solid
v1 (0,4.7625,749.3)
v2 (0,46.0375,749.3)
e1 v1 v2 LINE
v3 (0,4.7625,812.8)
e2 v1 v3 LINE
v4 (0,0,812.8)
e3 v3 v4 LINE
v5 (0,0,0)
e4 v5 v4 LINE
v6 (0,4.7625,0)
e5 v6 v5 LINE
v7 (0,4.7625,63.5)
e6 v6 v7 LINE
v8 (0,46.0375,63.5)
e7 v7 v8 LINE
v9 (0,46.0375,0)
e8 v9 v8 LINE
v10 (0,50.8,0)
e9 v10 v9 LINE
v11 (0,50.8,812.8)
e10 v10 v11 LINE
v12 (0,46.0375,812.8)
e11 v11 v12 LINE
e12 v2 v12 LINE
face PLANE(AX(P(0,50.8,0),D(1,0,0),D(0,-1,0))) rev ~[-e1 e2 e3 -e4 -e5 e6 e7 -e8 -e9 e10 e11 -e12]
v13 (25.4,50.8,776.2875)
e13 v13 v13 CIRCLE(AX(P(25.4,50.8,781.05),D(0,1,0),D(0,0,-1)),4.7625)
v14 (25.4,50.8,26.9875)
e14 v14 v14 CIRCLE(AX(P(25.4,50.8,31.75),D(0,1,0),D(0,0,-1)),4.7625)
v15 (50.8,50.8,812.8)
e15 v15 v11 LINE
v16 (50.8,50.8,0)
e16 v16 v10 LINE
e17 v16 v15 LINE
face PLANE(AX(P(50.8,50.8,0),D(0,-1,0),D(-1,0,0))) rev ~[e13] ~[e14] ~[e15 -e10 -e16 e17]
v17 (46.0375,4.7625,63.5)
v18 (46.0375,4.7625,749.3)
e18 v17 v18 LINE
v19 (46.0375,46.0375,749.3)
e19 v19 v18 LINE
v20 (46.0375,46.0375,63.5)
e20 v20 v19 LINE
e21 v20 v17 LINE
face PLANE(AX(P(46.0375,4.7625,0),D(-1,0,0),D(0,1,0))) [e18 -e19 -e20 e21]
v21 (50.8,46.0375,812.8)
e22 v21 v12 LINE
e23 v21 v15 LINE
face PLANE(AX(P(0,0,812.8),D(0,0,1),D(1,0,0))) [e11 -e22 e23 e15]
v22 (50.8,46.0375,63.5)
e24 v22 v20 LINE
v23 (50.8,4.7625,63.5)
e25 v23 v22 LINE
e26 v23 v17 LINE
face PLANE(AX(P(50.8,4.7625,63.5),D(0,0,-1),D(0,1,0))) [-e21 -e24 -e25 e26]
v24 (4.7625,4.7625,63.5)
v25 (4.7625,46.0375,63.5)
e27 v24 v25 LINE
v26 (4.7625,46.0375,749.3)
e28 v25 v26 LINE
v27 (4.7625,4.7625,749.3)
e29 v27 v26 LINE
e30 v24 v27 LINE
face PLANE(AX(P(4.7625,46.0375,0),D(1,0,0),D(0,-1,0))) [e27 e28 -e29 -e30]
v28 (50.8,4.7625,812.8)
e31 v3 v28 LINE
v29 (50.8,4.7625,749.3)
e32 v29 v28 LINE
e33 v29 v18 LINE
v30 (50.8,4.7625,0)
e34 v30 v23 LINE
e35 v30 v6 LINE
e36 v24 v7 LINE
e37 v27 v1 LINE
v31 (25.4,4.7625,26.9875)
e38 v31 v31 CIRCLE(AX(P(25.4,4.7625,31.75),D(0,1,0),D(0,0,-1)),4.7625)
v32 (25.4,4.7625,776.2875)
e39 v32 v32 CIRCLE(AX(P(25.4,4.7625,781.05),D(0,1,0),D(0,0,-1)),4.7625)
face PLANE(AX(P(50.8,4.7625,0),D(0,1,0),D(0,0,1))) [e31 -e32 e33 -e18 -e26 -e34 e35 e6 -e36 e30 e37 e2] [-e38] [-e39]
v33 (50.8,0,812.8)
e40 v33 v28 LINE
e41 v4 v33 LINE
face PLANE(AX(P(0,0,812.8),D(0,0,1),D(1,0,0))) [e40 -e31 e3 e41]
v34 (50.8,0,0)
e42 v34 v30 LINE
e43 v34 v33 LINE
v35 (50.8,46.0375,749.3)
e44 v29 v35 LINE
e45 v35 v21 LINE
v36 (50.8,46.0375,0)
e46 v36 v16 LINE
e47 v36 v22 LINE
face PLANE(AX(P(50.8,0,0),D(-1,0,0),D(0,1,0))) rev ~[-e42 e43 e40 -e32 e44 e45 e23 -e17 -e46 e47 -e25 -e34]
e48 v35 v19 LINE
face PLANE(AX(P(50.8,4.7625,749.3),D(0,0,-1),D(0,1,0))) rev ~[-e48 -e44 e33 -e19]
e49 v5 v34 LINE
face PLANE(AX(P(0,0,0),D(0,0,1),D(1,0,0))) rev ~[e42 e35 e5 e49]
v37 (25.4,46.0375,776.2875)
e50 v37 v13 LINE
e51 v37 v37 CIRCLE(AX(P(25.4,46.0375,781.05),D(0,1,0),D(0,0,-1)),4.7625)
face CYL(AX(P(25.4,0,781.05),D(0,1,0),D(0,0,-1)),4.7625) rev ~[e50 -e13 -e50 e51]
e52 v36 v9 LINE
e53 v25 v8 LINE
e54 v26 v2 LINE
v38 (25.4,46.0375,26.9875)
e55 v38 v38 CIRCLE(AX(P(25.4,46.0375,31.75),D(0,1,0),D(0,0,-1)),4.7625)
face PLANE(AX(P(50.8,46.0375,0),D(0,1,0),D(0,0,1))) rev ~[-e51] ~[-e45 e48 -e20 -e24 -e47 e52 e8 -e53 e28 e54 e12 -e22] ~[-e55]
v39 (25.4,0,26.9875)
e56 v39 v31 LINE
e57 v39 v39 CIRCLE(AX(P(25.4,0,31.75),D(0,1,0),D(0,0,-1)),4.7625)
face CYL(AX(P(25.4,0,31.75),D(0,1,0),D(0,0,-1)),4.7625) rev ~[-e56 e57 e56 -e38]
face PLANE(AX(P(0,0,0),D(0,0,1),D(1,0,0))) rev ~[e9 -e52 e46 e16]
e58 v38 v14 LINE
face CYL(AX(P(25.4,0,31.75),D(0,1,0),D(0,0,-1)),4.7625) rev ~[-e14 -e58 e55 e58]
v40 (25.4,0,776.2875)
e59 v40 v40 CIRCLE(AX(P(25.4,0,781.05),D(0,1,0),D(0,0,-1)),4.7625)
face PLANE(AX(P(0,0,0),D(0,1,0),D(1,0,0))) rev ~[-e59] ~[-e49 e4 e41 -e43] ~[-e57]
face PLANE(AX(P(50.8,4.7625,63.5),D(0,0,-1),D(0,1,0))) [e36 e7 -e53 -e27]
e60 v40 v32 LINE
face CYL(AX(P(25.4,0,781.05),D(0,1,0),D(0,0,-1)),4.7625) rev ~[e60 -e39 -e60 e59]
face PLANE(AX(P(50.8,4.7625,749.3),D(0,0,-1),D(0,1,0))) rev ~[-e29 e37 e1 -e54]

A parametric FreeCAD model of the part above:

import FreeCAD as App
import Part
import Sketcher

V = App.Vector
Q = App.Units.Quantity

doc = App.newDocument("Part")
params = doc.addObject("Spreadsheet::Sheet", "Params")
for row, (alias, value) in enumerate([
    ("sketch1_width", "2 in"),
    ("pad1_length", "32 in"),
    ("sketch2_height", "2.5 in"),
    ("sketch2_width", "1.625 in"),
    ("pocket1_length", "2 in"),
    ("sketch3_diameter", "0.375 in"),
    ("hole_diameter", "0.375 in"),
    ("hole_depth", "2 in"),
], start=1):
    params.set(f"A{row}", alias)
    params.set(f"B{row}", "=" + value)
    params.setAlias(f"B{row}", alias)

body = doc.addObject("PartDesign::Body", "Body")

# Sketch on XY plane
sketch1 = body.newObject("Sketcher::SketchObject", "Sketch")
sketch1.AttachmentSupport = (doc.getObject("XY_Plane"), [""])
sketch1.MapMode = "FlatFace"
sketch1.addGeometry(Part.LineSegment(V(0, 51, 0), V(0, 0, 0)), False)
sketch1.addGeometry(Part.LineSegment(V(0, 0, 0), V(51, 0, 0)), False)
sketch1.addGeometry(Part.LineSegment(V(51, 0, 0), V(51, 51, 0)), False)
sketch1.addGeometry(Part.LineSegment(V(51, 51, 0), V(0, 51, 0)), False)
sketch1.addGeometry(Part.LineSegment(V(5, 46, 0), V(46, 46, 0)), False)
sketch1.addGeometry(Part.LineSegment(V(46, 46, 0), V(46, 5, 0)), False)
sketch1.addGeometry(Part.LineSegment(V(46, 5, 0), V(5, 5, 0)), False)
sketch1.addGeometry(Part.LineSegment(V(5, 5, 0), V(5, 46, 0)), False)
sketch1.addConstraint(Sketcher.Constraint("Coincident", 0, 2, 1, 1))
sketch1.addConstraint(Sketcher.Constraint("Coincident", 1, 2, 2, 1))
sketch1.addConstraint(Sketcher.Constraint("Coincident", 2, 2, 3, 1))
sketch1.addConstraint(Sketcher.Constraint("Coincident", 3, 2, 0, 1))
sketch1.addConstraint(Sketcher.Constraint("Coincident", 4, 2, 5, 1))
sketch1.addConstraint(Sketcher.Constraint("Coincident", 5, 2, 6, 1))
sketch1.addConstraint(Sketcher.Constraint("Coincident", 6, 2, 7, 1))
sketch1.addConstraint(Sketcher.Constraint("Coincident", 7, 2, 4, 1))
sketch1.addConstraint(Sketcher.Constraint("Vertical", 0))
sketch1.addConstraint(Sketcher.Constraint("Horizontal", 1))
sketch1.addConstraint(Sketcher.Constraint("Vertical", 2))
sketch1.addConstraint(Sketcher.Constraint("Horizontal", 3))
sketch1.addConstraint(Sketcher.Constraint("Horizontal", 4))
sketch1.addConstraint(Sketcher.Constraint("Vertical", 5))
sketch1.addConstraint(Sketcher.Constraint("Horizontal", 6))
sketch1.addConstraint(Sketcher.Constraint("Vertical", 7))
sketch1.addConstraint(Sketcher.Constraint("Coincident", 0, 2, -1, 1))
sketch1.addConstraint(Sketcher.Constraint("Equal", 3, 0))
sketch1.addConstraint(Sketcher.Constraint("Equal", 6, 5))
sketch1.addConstraint(Sketcher.Constraint("DistanceX", 1, 1, 1, 2, Q("2 in")))
sketch1.addConstraint(Sketcher.Constraint("DistanceY", -1, 1, 5, 2, Q("0.1875 in")))
sketch1.addConstraint(Sketcher.Constraint("DistanceX", -1, 1, 6, 2, Q("0.1875 in")))
sketch1.addConstraint(Sketcher.Constraint("DistanceX", 4, 2, 2, 2, Q("0.1875 in")))
sketch1.setExpression("Constraints[19]", "Params.sketch1_width")
pad1 = body.newObject("PartDesign::Pad", "Pad")
pad1.Profile = sketch1
pad1.setExpression("Length", "Params.pad1_length")

# Sketch on YZ plane
sketch2 = body.newObject("Sketcher::SketchObject", "Sketch001")
sketch2.AttachmentSupport = (doc.getObject("YZ_Plane"), [""])
sketch2.MapMode = "FlatFace"
sketch2.AttachmentOffset = App.Placement(V(0, 0, 2 * 25.4), App.Rotation())
sketch2.addGeometry(Part.LineSegment(V(5, 64, 0), V(5, 0, 0)), False)
sketch2.addGeometry(Part.LineSegment(V(5, 0, 0), V(46, 0, 0)), False)
sketch2.addGeometry(Part.LineSegment(V(46, 0, 0), V(46, 64, 0)), False)
sketch2.addGeometry(Part.LineSegment(V(46, 64, 0), V(5, 64, 0)), False)
sketch2.addGeometry(Part.LineSegment(V(5, 813, 0), V(5, 749, 0)), False)
sketch2.addGeometry(Part.LineSegment(V(5, 749, 0), V(46, 749, 0)), False)
sketch2.addGeometry(Part.LineSegment(V(46, 749, 0), V(46, 813, 0)), False)
sketch2.addGeometry(Part.LineSegment(V(46, 813, 0), V(5, 813, 0)), False)
sketch2.addConstraint(Sketcher.Constraint("Coincident", 0, 2, 1, 1))
sketch2.addConstraint(Sketcher.Constraint("Coincident", 1, 2, 2, 1))
sketch2.addConstraint(Sketcher.Constraint("Coincident", 2, 2, 3, 1))
sketch2.addConstraint(Sketcher.Constraint("Coincident", 3, 2, 0, 1))
sketch2.addConstraint(Sketcher.Constraint("Coincident", 4, 2, 5, 1))
sketch2.addConstraint(Sketcher.Constraint("Coincident", 5, 2, 6, 1))
sketch2.addConstraint(Sketcher.Constraint("Coincident", 6, 2, 7, 1))
sketch2.addConstraint(Sketcher.Constraint("Coincident", 7, 2, 4, 1))
sketch2.addConstraint(Sketcher.Constraint("Vertical", 0))
sketch2.addConstraint(Sketcher.Constraint("Horizontal", 1))
sketch2.addConstraint(Sketcher.Constraint("Vertical", 2))
sketch2.addConstraint(Sketcher.Constraint("Horizontal", 3))
sketch2.addConstraint(Sketcher.Constraint("Vertical", 4))
sketch2.addConstraint(Sketcher.Constraint("Horizontal", 5))
sketch2.addConstraint(Sketcher.Constraint("Vertical", 6))
sketch2.addConstraint(Sketcher.Constraint("Horizontal", 7))
sketch2.addConstraint(Sketcher.Constraint("PointOnObject", 0, 2, -1))
sketch2.addConstraint(Sketcher.Constraint("Vertical", 3, 2, 4, 2))
sketch2.addConstraint(Sketcher.Constraint("Vertical", 2, 2, 5, 2))
sketch2.addConstraint(Sketcher.Constraint("Equal", 2, 4))
sketch2.addConstraint(Sketcher.Constraint("DistanceY", 0, 2, 0, 1, Q("2.5 in")))
sketch2.addConstraint(Sketcher.Constraint("DistanceY", -1, 1, 6, 2, Q("32 in")))
sketch2.addConstraint(Sketcher.Constraint("DistanceX", 1, 1, 1, 2, Q("1.625 in")))
sketch2.addConstraint(Sketcher.Constraint("DistanceX", -1, 1, 0, 2, Q("0.1875 in")))
sketch2.setExpression("Constraints[20]", "Params.sketch2_height")
sketch2.setExpression("Constraints[22]", "Params.sketch2_width")
pocket1 = body.newObject("PartDesign::Pocket", "Pocket")
pocket1.Profile = sketch2
pocket1.setExpression("Length", "Params.pocket1_length")

# Sketch on XZ plane
sketch3 = body.newObject("Sketcher::SketchObject", "Sketch002")
sketch3.AttachmentSupport = (doc.getObject("XZ_Plane"), [""])
sketch3.MapMode = "FlatFace"
sketch3.addGeometry(Part.Circle(V(25.4, 31.8, 0), V(0, 0, 1), 4.8), False)
sketch3.addGeometry(Part.Circle(V(25.4, 781, 0), V(0, 0, 1), 4.8), False)
sketch3.addConstraint(Sketcher.Constraint("Equal", 0, 1))
sketch3.addConstraint(Sketcher.Constraint("Vertical", 0, 3, 1, 3))
sketch3.addConstraint(Sketcher.Constraint("Diameter", 0, Q("0.375 in")))
sketch3.addConstraint(Sketcher.Constraint("DistanceX", -1, 1, 0, 3, Q("1 in")))
sketch3.addConstraint(Sketcher.Constraint("DistanceY", 0, 3, 1, 3, Q("29.5 in")))
sketch3.addConstraint(Sketcher.Constraint("DistanceY", -1, 1, 0, 3, Q("1.25 in")))
sketch3.setExpression("Constraints[2]", "Params.sketch3_diameter")
doc.recompute()
hole = body.newObject("PartDesign::Hole", "Hole")
hole.Profile = sketch3
hole.ThreadType = "None"
hole.setExpression("Diameter", "Params.hole_diameter")
hole.DepthType = "Dimension"
hole.setExpression("Depth", "Params.hole_depth")
hole.DrillPoint = "Angled"
hole.DrillPointAngle = 118

doc.recompute()
